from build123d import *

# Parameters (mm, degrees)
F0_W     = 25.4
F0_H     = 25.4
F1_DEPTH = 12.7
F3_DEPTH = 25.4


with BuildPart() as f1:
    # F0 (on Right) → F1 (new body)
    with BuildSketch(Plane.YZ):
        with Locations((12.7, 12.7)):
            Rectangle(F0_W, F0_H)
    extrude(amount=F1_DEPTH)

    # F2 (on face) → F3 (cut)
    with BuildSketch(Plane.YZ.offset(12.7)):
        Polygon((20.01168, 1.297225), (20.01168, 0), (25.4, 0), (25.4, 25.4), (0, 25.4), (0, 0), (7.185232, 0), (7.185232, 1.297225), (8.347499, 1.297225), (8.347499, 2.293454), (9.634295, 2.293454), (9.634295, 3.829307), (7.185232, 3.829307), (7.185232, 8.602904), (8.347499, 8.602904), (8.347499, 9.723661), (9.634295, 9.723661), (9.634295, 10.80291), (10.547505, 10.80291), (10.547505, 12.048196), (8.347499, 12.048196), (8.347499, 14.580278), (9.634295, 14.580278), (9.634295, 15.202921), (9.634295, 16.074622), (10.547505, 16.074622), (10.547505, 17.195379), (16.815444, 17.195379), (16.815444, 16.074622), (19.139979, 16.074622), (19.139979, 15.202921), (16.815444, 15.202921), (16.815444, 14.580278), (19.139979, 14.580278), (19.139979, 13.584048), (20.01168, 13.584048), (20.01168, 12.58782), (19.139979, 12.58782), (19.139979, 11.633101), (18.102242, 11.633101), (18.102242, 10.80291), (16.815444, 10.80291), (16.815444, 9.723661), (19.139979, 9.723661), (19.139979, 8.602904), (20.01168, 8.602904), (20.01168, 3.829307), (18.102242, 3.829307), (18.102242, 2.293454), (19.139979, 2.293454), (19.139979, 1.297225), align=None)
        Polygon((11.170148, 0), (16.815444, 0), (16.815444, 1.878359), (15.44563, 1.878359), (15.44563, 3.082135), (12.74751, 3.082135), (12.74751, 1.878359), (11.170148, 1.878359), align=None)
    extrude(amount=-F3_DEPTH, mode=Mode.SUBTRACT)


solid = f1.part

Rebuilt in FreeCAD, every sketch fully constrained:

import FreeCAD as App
import Part
import Sketcher
from FreeCAD import Vector
Q = App.Units.Quantity

doc = App.newDocument("Part")
body = doc.addObject("PartDesign::Body", "Body")

sketch1 = doc.addObject("Sketcher::SketchObject", "Sketch")
body.addObject(sketch1)
sketch1.AttachmentSupport = (doc.YZ_Plane, [""])
sketch1.MapMode = "FlatFace"
sketch1.addGeometry([
    Part.LineSegment(Vector(0, 25, 0), Vector(0, 0, 0)),
    Part.LineSegment(Vector(0, 0, 0), Vector(25, 0, 0)),
    Part.LineSegment(Vector(25, 0, 0), Vector(25, 25, 0)),
    Part.LineSegment(Vector(25, 25, 0), Vector(0, 25, 0)),
], False)
sketch1.addConstraint([
    Sketcher.Constraint("Coincident", 0, 2, 1, 1),
    Sketcher.Constraint("Coincident", 1, 2, 2, 1),
    Sketcher.Constraint("Coincident", 2, 2, 3, 1),
    Sketcher.Constraint("Coincident", 3, 2, 0, 1),
    Sketcher.Constraint("Vertical", 0),
    Sketcher.Constraint("Horizontal", 1),
    Sketcher.Constraint("Vertical", 2),
    Sketcher.Constraint("Horizontal", 3),
    Sketcher.Constraint("Coincident", 0, 2, -1, 1),
    Sketcher.Constraint("Equal", 3, 0),
    Sketcher.Constraint("DistanceX", 1, 1, 1, 2, Q("1 in")),
])
pad1 = doc.addObject("PartDesign::Pad", "Pad")
body.addObject(pad1)
pad1.Profile = sketch1
pad1.Length = Q("0.5 in")

sketch2 = doc.addObject("Sketcher::SketchObject", "Sketch001")
body.addObject(sketch2)
sketch2.AttachmentSupport = (doc.YZ_Plane, [""])
sketch2.MapMode = "FlatFace"
sketch2.AttachmentOffset = App.Placement(Vector(0, 0, 0.5 * 25.4), App.Rotation())
sketch2.addGeometry([
    Part.LineSegment(Vector(20, 1.3, 0), Vector(20, 0, 0)),
    Part.LineSegment(Vector(20, 0, 0), Vector(25.4, 0, 0)),
    Part.LineSegment(Vector(25.4, 0, 0), Vector(25.4, 25.4, 0)),
    Part.LineSegment(Vector(25.4, 25.4, 0), Vector(0, 25.4, 0)),
    Part.LineSegment(Vector(0, 25.4, 0), Vector(0, 0, 0)),
    Part.LineSegment(Vector(0, 0, 0), Vector(7.2, 0, 0)),
    Part.LineSegment(Vector(7.2, 0, 0), Vector(7.2, 1.3, 0)),
    Part.LineSegment(Vector(7.2, 1.3, 0), Vector(8.3, 1.3, 0)),
    Part.LineSegment(Vector(8.3, 1.3, 0), Vector(8.3, 2.3, 0)),
    Part.LineSegment(Vector(8.3, 2.3, 0), Vector(9.6, 2.3, 0)),
    Part.LineSegment(Vector(9.6, 2.3, 0), Vector(9.6, 3.8, 0)),
    Part.LineSegment(Vector(9.6, 3.8, 0), Vector(7.2, 3.8, 0)),
    Part.LineSegment(Vector(7.2, 3.8, 0), Vector(7.2, 8.6, 0)),
    Part.LineSegment(Vector(7.2, 8.6, 0), Vector(8.3, 8.6, 0)),
    Part.LineSegment(Vector(8.3, 8.6, 0), Vector(8.3, 9.7, 0)),
    Part.LineSegment(Vector(8.3, 9.7, 0), Vector(9.6, 9.7, 0)),
    Part.LineSegment(Vector(9.6, 9.7, 0), Vector(9.6, 10.8, 0)),
    Part.LineSegment(Vector(9.6, 10.8, 0), Vector(10.5, 10.8, 0)),
    Part.LineSegment(Vector(10.5, 10.8, 0), Vector(10.5, 12, 0)),
    Part.LineSegment(Vector(10.5, 12, 0), Vector(8.3, 12, 0)),
    Part.LineSegment(Vector(8.3, 12, 0), Vector(8.3, 14.6, 0)),
    Part.LineSegment(Vector(8.3, 14.6, 0), Vector(9.6, 14.6, 0)),
    Part.LineSegment(Vector(9.6, 14.6, 0), Vector(9.6, 16.1, 0)),
    Part.LineSegment(Vector(9.6, 16.1, 0), Vector(10.5, 16.1, 0)),
    Part.LineSegment(Vector(10.5, 16.1, 0), Vector(10.5, 17.2, 0)),
    Part.LineSegment(Vector(10.5, 17.2, 0), Vector(16.8, 17.2, 0)),
    Part.LineSegment(Vector(16.8, 17.2, 0), Vector(16.8, 16.1, 0)),
    Part.LineSegment(Vector(16.8, 16.1, 0), Vector(19.1, 16.1, 0)),
    Part.LineSegment(Vector(19.1, 16.1, 0), Vector(19.1, 15.2, 0)),
    Part.LineSegment(Vector(19.1, 15.2, 0), Vector(16.8, 15.2, 0)),
    Part.LineSegment(Vector(16.8, 15.2, 0), Vector(16.8, 14.6, 0)),
    Part.LineSegment(Vector(16.8, 14.6, 0), Vector(19.1, 14.6, 0)),
    Part.LineSegment(Vector(19.1, 14.6, 0), Vector(19.1, 13.6, 0)),
    Part.LineSegment(Vector(19.1, 13.6, 0), Vector(20, 13.6, 0)),
    Part.LineSegment(Vector(20, 13.6, 0), Vector(20, 12.6, 0)),
    Part.LineSegment(Vector(20, 12.6, 0), Vector(19.1, 12.6, 0)),
    Part.LineSegment(Vector(19.1, 12.6, 0), Vector(19.1, 11.6, 0)),
    Part.LineSegment(Vector(19.1, 11.6, 0), Vector(18.1, 11.6, 0)),
    Part.LineSegment(Vector(18.1, 11.6, 0), Vector(18.1, 10.8, 0)),
    Part.LineSegment(Vector(18.1, 10.8, 0), Vector(16.8, 10.8, 0)),
    Part.LineSegment(Vector(16.8, 10.8, 0), Vector(16.8, 9.7, 0)),
    Part.LineSegment(Vector(16.8, 9.7, 0), Vector(19.1, 9.7, 0)),
    Part.LineSegment(Vector(19.1, 9.7, 0), Vector(19.1, 8.6, 0)),
    Part.LineSegment(Vector(19.1, 8.6, 0), Vector(20, 8.6, 0)),
    Part.LineSegment(Vector(20, 8.6, 0), Vector(20, 3.8, 0)),
    Part.LineSegment(Vector(20, 3.8, 0), Vector(18.1, 3.8, 0)),
    Part.LineSegment(Vector(18.1, 3.8, 0), Vector(18.1, 2.3, 0)),
    Part.LineSegment(Vector(18.1, 2.3, 0), Vector(19.1, 2.3, 0)),
    Part.LineSegment(Vector(19.1, 2.3, 0), Vector(19.1, 1.3, 0)),
    Part.LineSegment(Vector(19.1, 1.3, 0), Vector(20, 1.3, 0)),
    Part.LineSegment(Vector(11.2, 0, 0), Vector(16.8, 0, 0)),
    Part.LineSegment(Vector(16.8, 0, 0), Vector(16.8, 1.9, 0)),
    Part.LineSegment(Vector(16.8, 1.9, 0), Vector(15.4, 1.9, 0)),
    Part.LineSegment(Vector(15.4, 1.9, 0), Vector(15.4, 3.1, 0)),
    Part.LineSegment(Vector(15.4, 3.1, 0), Vector(12.7, 3.1, 0)),
    Part.LineSegment(Vector(12.7, 3.1, 0), Vector(12.7, 1.9, 0)),
    Part.LineSegment(Vector(12.7, 1.9, 0), Vector(11.2, 1.9, 0)),
    Part.LineSegment(Vector(11.2, 1.9, 0), Vector(11.2, 0, 0)),
], False)
sketch2.addConstraint([
    Sketcher.Constraint("Coincident", 0, 2, 1, 1),
    Sketcher.Constraint("Coincident", 1, 2, 2, 1),
    Sketcher.Constraint("Coincident", 2, 2, 3, 1),
    Sketcher.Constraint("Coincident", 3, 2, 4, 1),
    Sketcher.Constraint("Coincident", 4, 2, 5, 1),
    Sketcher.Constraint("Coincident", 5, 2, 6, 1),
    Sketcher.Constraint("Coincident", 6, 2, 7, 1),
    Sketcher.Constraint("Coincident", 7, 2, 8, 1),
    Sketcher.Constraint("Coincident", 8, 2, 9, 1),
    Sketcher.Constraint("Coincident", 9, 2, 10, 1),
    Sketcher.Constraint("Coincident", 10, 2, 11, 1),
    Sketcher.Constraint("Coincident", 11, 2, 12, 1),
    Sketcher.Constraint("Coincident", 12, 2, 13, 1),
    Sketcher.Constraint("Coincident", 13, 2, 14, 1),
    Sketcher.Constraint("Coincident", 14, 2, 15, 1),
    Sketcher.Constraint("Coincident", 15, 2, 16, 1),
    Sketcher.Constraint("Coincident", 16, 2, 17, 1),
    Sketcher.Constraint("Coincident", 17, 2, 18, 1),
    Sketcher.Constraint("Coincident", 18, 2, 19, 1),
    Sketcher.Constraint("Coincident", 19, 2, 20, 1),
    Sketcher.Constraint("Coincident", 20, 2, 21, 1),
    Sketcher.Constraint("Coincident", 21, 2, 22, 1),
    Sketcher.Constraint("Coincident", 22, 2, 23, 1),
    Sketcher.Constraint("Coincident", 23, 2, 24, 1),
    Sketcher.Constraint("Coincident", 24, 2, 25, 1),
    Sketcher.Constraint("Coincident", 25, 2, 26, 1),
    Sketcher.Constraint("Coincident", 26, 2, 27, 1),
    Sketcher.Constraint("Coincident", 27, 2, 28, 1),
    Sketcher.Constraint("Coincident", 28, 2, 29, 1),
    Sketcher.Constraint("Coincident", 29, 2, 30, 1),
    Sketcher.Constraint("Coincident", 30, 2, 31, 1),
    Sketcher.Constraint("Coincident", 31, 2, 32, 1),
    Sketcher.Constraint("Coincident", 32, 2, 33, 1),
    Sketcher.Constraint("Coincident", 33, 2, 34, 1),
    Sketcher.Constraint("Coincident", 34, 2, 35, 1),
    Sketcher.Constraint("Coincident", 35, 2, 36, 1),
    Sketcher.Constraint("Coincident", 36, 2, 37, 1),
    Sketcher.Constraint("Coincident", 37, 2, 38, 1),
    Sketcher.Constraint("Coincident", 38, 2, 39, 1),
    Sketcher.Constraint("Coincident", 39, 2, 40, 1),
    Sketcher.Constraint("Coincident", 40, 2, 41, 1),
    Sketcher.Constraint("Coincident", 41, 2, 42, 1),
    Sketcher.Constraint("Coincident", 42, 2, 43, 1),
    Sketcher.Constraint("Coincident", 43, 2, 44, 1),
    Sketcher.Constraint("Coincident", 44, 2, 45, 1),
    Sketcher.Constraint("Coincident", 45, 2, 46, 1),
    Sketcher.Constraint("Coincident", 46, 2, 47, 1),
    Sketcher.Constraint("Coincident", 47, 2, 48, 1),
    Sketcher.Constraint("Coincident", 48, 2, 49, 1),
    Sketcher.Constraint("Coincident", 49, 2, 0, 1),
    Sketcher.Constraint("Coincident", 50, 2, 51, 1),
    Sketcher.Constraint("Coincident", 51, 2, 52, 1),
    Sketcher.Constraint("Coincident", 52, 2, 53, 1),
    Sketcher.Constraint("Coincident", 53, 2, 54, 1),
    Sketcher.Constraint("Coincident", 54, 2, 55, 1),
    Sketcher.Constraint("Coincident", 55, 2, 56, 1),
    Sketcher.Constraint("Coincident", 56, 2, 57, 1),
    Sketcher.Constraint("Coincident", 57, 2, 50, 1),
    Sketcher.Constraint("Vertical", 0),
    Sketcher.Constraint("Horizontal", 1),
    Sketcher.Constraint("Vertical", 2),
    Sketcher.Constraint("Horizontal", 3),
    Sketcher.Constraint("Vertical", 4),
    Sketcher.Constraint("Horizontal", 5),
    Sketcher.Constraint("Vertical", 6),
    Sketcher.Constraint("Horizontal", 7),
    Sketcher.Constraint("Vertical", 8),
    Sketcher.Constraint("Horizontal", 9),
    Sketcher.Constraint("Vertical", 10),
    Sketcher.Constraint("Horizontal", 11),
    Sketcher.Constraint("Vertical", 12),
    Sketcher.Constraint("Horizontal", 13),
    Sketcher.Constraint("Vertical", 14),
    Sketcher.Constraint("Horizontal", 15),
    Sketcher.Constraint("Vertical", 16),
    Sketcher.Constraint("Horizontal", 17),
    Sketcher.Constraint("Vertical", 18),
    Sketcher.Constraint("Horizontal", 19),
    Sketcher.Constraint("Vertical", 20),
    Sketcher.Constraint("Horizontal", 21),
    Sketcher.Constraint("Vertical", 22),
    Sketcher.Constraint("Horizontal", 23),
    Sketcher.Constraint("Vertical", 24),
    Sketcher.Constraint("Horizontal", 25),
    Sketcher.Constraint("Vertical", 26),
    Sketcher.Constraint("Horizontal", 27),
    Sketcher.Constraint("Vertical", 28),
    Sketcher.Constraint("Horizontal", 29),
    Sketcher.Constraint("Vertical", 30),
    Sketcher.Constraint("Horizontal", 31),
    Sketcher.Constraint("Vertical", 32),
    Sketcher.Constraint("Horizontal", 33),
    Sketcher.Constraint("Vertical", 34),
    Sketcher.Constraint("Horizontal", 35),
    Sketcher.Constraint("Vertical", 36),
    Sketcher.Constraint("Horizontal", 37),
    Sketcher.Constraint("Vertical", 38),
    Sketcher.Constraint("Horizontal", 39),
    Sketcher.Constraint("Vertical", 40),
    Sketcher.Constraint("Horizontal", 41),
    Sketcher.Constraint("Vertical", 42),
    Sketcher.Constraint("Horizontal", 43),
    Sketcher.Constraint("Vertical", 44),
    Sketcher.Constraint("Horizontal", 45),
    Sketcher.Constraint("Vertical", 46),
    Sketcher.Constraint("Horizontal", 47),
    Sketcher.Constraint("Vertical", 48),
    Sketcher.Constraint("Horizontal", 49),
    Sketcher.Constraint("Horizontal", 50),
    Sketcher.Constraint("Vertical", 51),
    Sketcher.Constraint("Horizontal", 52),
    Sketcher.Constraint("Vertical", 53),
    Sketcher.Constraint("Horizontal", 54),
    Sketcher.Constraint("Vertical", 55),
    Sketcher.Constraint("Horizontal", 56),
    Sketcher.Constraint("Vertical", 57),
    Sketcher.Constraint("Coincident", 4, 2, -1, 1),
    Sketcher.Constraint("PointOnObject", 0, 2, -1),
    Sketcher.Constraint("PointOnObject", 50, 2, -1),
    Sketcher.Constraint("Horizontal", 23, 2, 26, 2),
    Sketcher.Constraint("Horizontal", 21, 2, 30, 2),
    Sketcher.Constraint("Horizontal", 17, 2, 38, 2),
    Sketcher.Constraint("Horizontal", 15, 2, 40, 2),
    Sketcher.Constraint("Horizontal", 13, 2, 42, 2),
    Sketcher.Constraint("Horizontal", 11, 2, 44, 2),
    Sketcher.Constraint("Horizontal", 9, 2, 46, 2),
    Sketcher.Constraint("Horizontal", 7, 2, 48, 2),
    Sketcher.Constraint("Horizontal", 52, 2, 55, 2),
    Sketcher.Constraint("Vertical", 6, 2, 11, 2),
    Sketcher.Constraint("Vertical", 8, 2, 13, 2),
    Sketcher.Constraint("Vertical", 10, 2, 15, 2),
    Sketcher.Constraint("Vertical", 14, 2, 19, 2),
    Sketcher.Constraint("Vertical", 16, 2, 21, 2),
    Sketcher.Constraint("Vertical", 18, 2, 23, 2),
    Sketcher.Constraint("Vertical", 26, 2, 29, 2),
    Sketcher.Constraint("Vertical", 28, 2, 31, 2),
    Sketcher.Constraint("Vertical", 0, 2, 33, 2),
    Sketcher.Constraint("Vertical", 32, 2, 35, 2),
    Sketcher.Constraint("Vertical", 30, 2, 39, 2),
    Sketcher.Constraint("Vertical", 36, 2, 41, 2),
    Sketcher.Constraint("Vertical", 34, 2, 43, 2),
    Sketcher.Constraint("Vertical", 38, 2, 45, 2),
    Sketcher.Constraint("Vertical", 42, 2, 47, 2),
    Sketcher.Constraint("Vertical", 40, 2, 50, 2),
    Sketcher.Constraint("Equal", 3, 2),
    Sketcher.Constraint("Equal", 14, 24),
    Sketcher.Constraint("Equal", 49, 28),
    Sketcher.Constraint("Equal", 8, 32),
    Sketcher.Constraint("Equal", 8, 34),
    Sketcher.Constraint("DistanceX", 3, 2, 3, 1, Q("1 in")),
    Sketcher.Constraint("DistanceX", 33, 1, 33, 2, 0.871701),
    Sketcher.Constraint("DistanceX", 39, 2, 39, 1, 1.286798),
    Sketcher.Constraint("DistanceX", 1, 1, 1, 2, 5.38832),
    Sketcher.Constraint("DistanceX", 17, 1, 17, 2, 0.91321),
    Sketcher.Constraint("DistanceX", 25, 1, 25, 2, 6.267939),
    Sketcher.Constraint("DistanceX", 54, 2, 54, 1, 2.69812),
    Sketcher.Constraint("DistanceY", 8, 1, 8, 2, 0.996229),
    Sketcher.Constraint("DistanceY", 16, 1, 16, 2, 1.079249),
    Sketcher.Constraint("DistanceY", 20, 1, 20, 2, 2.532082),
    Sketcher.Constraint("DistanceY", 36, 2, 36, 1, 0.954719),
    Sketcher.Constraint("DistanceY", 38, 2, 38, 1, 0.830191),
    Sketcher.Constraint("DistanceY", 51, 1, 51, 2, 1.878359),
    Sketcher.Constraint("DistanceX", -1, 1, 7, 2, 8.347499),
    Sketcher.Constraint("DistanceY", -1, 1, 36, 2, 11.633101),
    Sketcher.Constraint("DistanceY", 21, 2, 24, 2, 2.615101),
    Sketcher.Constraint("DistanceY", 34, 2, 28, 2, 2.615101),
    Sketcher.Constraint("DistanceX", 5, 1, 5, 2, 7.185232),
    Sketcher.Constraint("DistanceX", 9, 1, 9, 2, 1.286796),
    Sketcher.Constraint("DistanceX", 50, 1, 50, 2, 5.645296),
    Sketcher.Constraint("DistanceX", 52, 2, 52, 1, 1.369814),
    Sketcher.Constraint("DistanceY", 0, 2, 0, 1, 1.297225),
    Sketcher.Constraint("DistanceY", 10, 1, 10, 2, 1.535853),
    Sketcher.Constraint("DistanceY", 53, 1, 53, 2, 1.203776),
])
pocket1 = doc.addObject("PartDesign::Pocket", "Pocket")
body.addObject(pocket1)
pocket1.Profile = sketch2
pocket1.Length = Q("1 in")

doc.recompute()
